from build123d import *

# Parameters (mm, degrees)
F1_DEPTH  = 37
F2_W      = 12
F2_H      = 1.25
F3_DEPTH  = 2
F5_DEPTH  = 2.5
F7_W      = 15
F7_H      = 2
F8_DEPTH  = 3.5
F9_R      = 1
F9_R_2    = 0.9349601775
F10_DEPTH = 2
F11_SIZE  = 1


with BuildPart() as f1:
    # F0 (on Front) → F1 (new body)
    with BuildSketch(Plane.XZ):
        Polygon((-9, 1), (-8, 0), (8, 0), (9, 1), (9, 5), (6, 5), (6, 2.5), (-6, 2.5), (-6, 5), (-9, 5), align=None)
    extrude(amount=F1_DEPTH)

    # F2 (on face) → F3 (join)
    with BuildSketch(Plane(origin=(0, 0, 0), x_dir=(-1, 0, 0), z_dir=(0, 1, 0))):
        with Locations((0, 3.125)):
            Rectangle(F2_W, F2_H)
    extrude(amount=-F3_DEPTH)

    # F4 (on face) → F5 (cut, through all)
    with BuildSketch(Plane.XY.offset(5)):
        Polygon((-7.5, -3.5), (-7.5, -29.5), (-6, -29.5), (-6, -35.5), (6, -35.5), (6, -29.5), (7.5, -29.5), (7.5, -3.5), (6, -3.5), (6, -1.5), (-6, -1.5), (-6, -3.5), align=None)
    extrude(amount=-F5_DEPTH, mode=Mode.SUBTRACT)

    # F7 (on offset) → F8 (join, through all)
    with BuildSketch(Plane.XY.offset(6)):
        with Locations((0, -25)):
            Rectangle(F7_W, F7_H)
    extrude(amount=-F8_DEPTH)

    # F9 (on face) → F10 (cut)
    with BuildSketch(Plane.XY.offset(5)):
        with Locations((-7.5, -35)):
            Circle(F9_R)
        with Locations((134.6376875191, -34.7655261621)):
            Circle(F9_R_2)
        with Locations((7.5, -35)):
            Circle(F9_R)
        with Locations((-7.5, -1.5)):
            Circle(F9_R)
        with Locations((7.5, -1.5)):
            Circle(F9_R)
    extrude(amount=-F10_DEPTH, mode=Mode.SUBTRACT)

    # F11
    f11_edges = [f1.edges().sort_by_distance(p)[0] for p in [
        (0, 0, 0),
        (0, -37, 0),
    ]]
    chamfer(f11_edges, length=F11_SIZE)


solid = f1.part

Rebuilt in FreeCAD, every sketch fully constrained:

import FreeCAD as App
import Part
import Sketcher
from FreeCAD import Vector
Q = App.Units.Quantity


def edges_at(feature, points):
    """Names of the edges that pass closest to the given points."""
    edges = feature.Shape.Edges
    near = lambda p: min(range(len(edges)), key=lambda i: edges[i].distToShape(Part.Vertex(*p))[0])
    return sorted({f"Edge{near(p) + 1}" for p in points})


def add_polygon(sketch, points):
    """Adds a closed chain of lines whose ends are joined by coincident constraints."""
    first, n = sketch.GeometryCount, len(points)
    for a, b in zip(points, points[1:] + points[:1]):
        sketch.addGeometry(Part.LineSegment(App.Vector(*a, 0), App.Vector(*b, 0)), False)
    for i in range(n):
        sketch.addConstraint(Sketcher.Constraint("Coincident", first + i, 2, first + (i + 1) % n, 1))

doc = App.newDocument("Part")
body = doc.addObject("PartDesign::Body", "Body")

# Sketch on XZ plane
sketch1 = doc.addObject("Sketcher::SketchObject", "Sketch")
body.addObject(sketch1)
sketch1.AttachmentSupport = (doc.XZ_Plane, [""])
sketch1.MapMode = "FlatFace"
add_polygon(sketch1, [(-9, 1), (-8, 0), (8, 0), (9, 1), (9, 5), (6, 5), (6, 2.5), (-6, 2.5), (-6, 5), (-9, 5)])  # lines 0-9
sketch1.addConstraint([
    Sketcher.Constraint("Horizontal", 1),
    Sketcher.Constraint("Vertical", 3),
    Sketcher.Constraint("Horizontal", 4),
    Sketcher.Constraint("Vertical", 5),
    Sketcher.Constraint("Horizontal", 6),
    Sketcher.Constraint("Vertical", 7),
    Sketcher.Constraint("Horizontal", 8),
    Sketcher.Constraint("Vertical", 9),
    Sketcher.Constraint("Symmetric", 0, 2, 1, 2, -1, 1),
    Sketcher.Constraint("Symmetric", 4, 2, 7, 2, -2),
    Sketcher.Constraint("Symmetric", 2, 2, 9, 2, -2),
    Sketcher.Constraint("Perpendicular", 0, 2),
    Sketcher.Constraint("DistanceX", 1, 1, 1, 2, Q("16 mm")),
    Sketcher.Constraint("DistanceX", 4, 2, 4, 1, Q("3 mm")),
    Sketcher.Constraint("DistanceX", 6, 2, 6, 1, Q("12 mm")),
    Sketcher.Constraint("DistanceY", 3, 1, 3, 2, Q("4 mm")),
    Sketcher.Constraint("DistanceY", 5, 2, 5, 1, Q("2.5 mm")),
])
pad1 = doc.addObject("PartDesign::Pad", "Pad")
body.addObject(pad1)
pad1.Profile = sketch1
pad1.Length = 37

# Sketch on XZ plane
sketch2 = doc.addObject("Sketcher::SketchObject", "Sketch001")
body.addObject(sketch2)
sketch2.AttachmentSupport = (doc.XZ_Plane, [""])
sketch2.MapMode = "FlatFace"
add_polygon(sketch2, [(6, 3.75), (6, 2.5), (-6, 2.5), (-6, 3.75)])  # lines 0-3
sketch2.addConstraint([
    Sketcher.Constraint("Vertical", 0),
    Sketcher.Constraint("Horizontal", 1),
    Sketcher.Constraint("Vertical", 2),
    Sketcher.Constraint("Horizontal", 3),
    Sketcher.Constraint("DistanceX", 1, 2, 1, 1, Q("12 mm")),
    Sketcher.Constraint("DistanceX", -1, 1, 0, 2, Q("6 mm")),
    Sketcher.Constraint("DistanceY", 0, 2, 0, 1, Q("1.25 mm")),
    Sketcher.Constraint("DistanceY", -1, 1, 0, 2, Q("2.5 mm")),
])
pad2 = doc.addObject("PartDesign::Pad", "Pad001")
body.addObject(pad2)
pad2.Profile = sketch2
pad2.Length = 2

# Sketch on XY plane
sketch3 = doc.addObject("Sketcher::SketchObject", "Sketch002")
body.addObject(sketch3)
sketch3.AttachmentSupport = (doc.XY_Plane, [""])
sketch3.MapMode = "FlatFace"
sketch3.AttachmentOffset = App.Placement(Vector(0, 0, 5), App.Rotation())
add_polygon(sketch3, [(-7.5, -3.5), (-7.5, -29.5), (-6, -29.5), (-6, -35.5), (6, -35.5), (6, -29.5), (7.5, -29.5), (7.5, -3.5), (6, -3.5), (6, -1.5), (-6, -1.5), (-6, -3.5)])  # lines 0-11
sketch3.addConstraint([
    Sketcher.Constraint("Vertical", 0),
    Sketcher.Constraint("Horizontal", 1),
    Sketcher.Constraint("Vertical", 2),
    Sketcher.Constraint("Horizontal", 3),
    Sketcher.Constraint("Vertical", 4),
    Sketcher.Constraint("Horizontal", 5),
    Sketcher.Constraint("Vertical", 6),
    Sketcher.Constraint("Horizontal", 7),
    Sketcher.Constraint("Vertical", 8),
    Sketcher.Constraint("Horizontal", 9),
    Sketcher.Constraint("Vertical", 10),
    Sketcher.Constraint("Horizontal", 11),
    Sketcher.Constraint("Symmetric", 1, 2, 4, 2, -2),
    Sketcher.Constraint("Symmetric", 7, 2, 10, 2, -2),
    Sketcher.Constraint("Vertical", 4, 2, 7, 2),
    Sketcher.Constraint("Equal", 1, 5),
    Sketcher.Constraint("DistanceX", 3, 1, 3, 2, Q("12 mm")),
    Sketcher.Constraint("DistanceY", 0, 2, 0, 1, Q("26 mm")),
    Sketcher.Constraint("DistanceY", 2, 2, 2, 1, Q("6 mm")),
    Sketcher.Constraint("DistanceY", 8, 1, 8, 2, Q("2 mm")),
    Sketcher.Constraint("DistanceX", 1, 1, 1, 2, Q("1.5 mm")),
    Sketcher.Constraint("DistanceY", 0, 2, -1, 1, Q("29.5 mm")),
])
pocket1 = doc.addObject("PartDesign::Pocket", "Pocket")
body.addObject(pocket1)
pocket1.Profile = sketch3
pocket1.Length = 2.5

# Sketch on XY plane
sketch4 = doc.addObject("Sketcher::SketchObject", "Sketch003")
body.addObject(sketch4)
sketch4.AttachmentSupport = (doc.XY_Plane, [""])
sketch4.MapMode = "FlatFace"
sketch4.AttachmentOffset = App.Placement(Vector(0, 0, 6), App.Rotation())
add_polygon(sketch4, [(-7.5, -24), (-7.5, -26), (7.5, -26), (7.5, -24)])  # lines 0-3
sketch4.addConstraint([
    Sketcher.Constraint("Vertical", 0),
    Sketcher.Constraint("Horizontal", 1),
    Sketcher.Constraint("Vertical", 2),
    Sketcher.Constraint("Horizontal", 3),
    Sketcher.Constraint("DistanceX", 1, 1, 1, 2, Q("15 mm")),
    Sketcher.Constraint("DistanceY", 0, 2, 0, 1, Q("2 mm")),
    Sketcher.Constraint("DistanceY", 0, 2, -1, 1, Q("26 mm")),
    Sketcher.Constraint("DistanceX", 0, 2, -1, 1, Q("7.5 mm")),
])
pad3 = doc.addObject("PartDesign::Pad", "Pad002")
body.addObject(pad3)
pad3.Profile = sketch4
pad3.Type = "UpToLast"
pad3.Reversed = True

# Sketch on XY plane
sketch5 = doc.addObject("Sketcher::SketchObject", "Sketch004")
body.addObject(sketch5)
sketch5.AttachmentSupport = (doc.XY_Plane, [""])
sketch5.MapMode = "FlatFace"
sketch5.AttachmentOffset = App.Placement(Vector(0, 0, 5), App.Rotation())
sketch5.addGeometry([
    Part.Circle(Vector(-7.5, -35, 0), Vector(0, 0, 1), 1),  # 0
    Part.Circle(Vector(134.637688, -34.765526, 0), Vector(0, 0, 1), 0.93496),  # 1
    Part.Circle(Vector(7.5, -35, 0), Vector(0, 0, 1), 1),  # 2
    Part.Circle(Vector(-7.5, -1.5, 0), Vector(0, 0, 1), 1),  # 3
    Part.Circle(Vector(7.5, -1.5, 0), Vector(0, 0, 1), 1),  # 4
], False)
sketch5.addConstraint([
    Sketcher.Constraint("Equal", 0, 2),
    Sketcher.Constraint("Equal", 2, 3),
    Sketcher.Constraint("Equal", 3, 4),
    Sketcher.Constraint("Symmetric", 0, 3, 2, 3, -2),
    Sketcher.Constraint("Symmetric", 3, 3, 4, 3, -2),
    Sketcher.Constraint("Vertical", 0, 3, 3, 3),
    Sketcher.Constraint("Diameter", 0, Q("2 mm")),
    Sketcher.Constraint("DistanceY", 0, 3, -1, 1, Q("35 mm")),
    Sketcher.Constraint("DistanceX", 0, 3, 2, 3, Q("15 mm")),
    Sketcher.Constraint("DistanceY", 3, 3, -1, 1, Q("1.5 mm")),
    Sketcher.Constraint("Diameter", 1, Q("1.86992 mm")),
    Sketcher.Constraint("DistanceX", -1, 1, 1, 3, Q("134.637688 mm")),
    Sketcher.Constraint("DistanceY", 1, 3, -1, 1, Q("34.765526 mm")),
])
pocket2 = doc.addObject("PartDesign::Pocket", "Pocket001")
body.addObject(pocket2)
pocket2.Profile = sketch5
pocket2.Length = 2
doc.recompute()

chamfer = doc.addObject("PartDesign::Chamfer", "Chamfer")
body.addObject(chamfer)
chamfer.Base = (pocket2, edges_at(pocket2, [(0, 0, 0), (0, -37, 0)]))
chamfer.Size = 1

doc.recompute()
